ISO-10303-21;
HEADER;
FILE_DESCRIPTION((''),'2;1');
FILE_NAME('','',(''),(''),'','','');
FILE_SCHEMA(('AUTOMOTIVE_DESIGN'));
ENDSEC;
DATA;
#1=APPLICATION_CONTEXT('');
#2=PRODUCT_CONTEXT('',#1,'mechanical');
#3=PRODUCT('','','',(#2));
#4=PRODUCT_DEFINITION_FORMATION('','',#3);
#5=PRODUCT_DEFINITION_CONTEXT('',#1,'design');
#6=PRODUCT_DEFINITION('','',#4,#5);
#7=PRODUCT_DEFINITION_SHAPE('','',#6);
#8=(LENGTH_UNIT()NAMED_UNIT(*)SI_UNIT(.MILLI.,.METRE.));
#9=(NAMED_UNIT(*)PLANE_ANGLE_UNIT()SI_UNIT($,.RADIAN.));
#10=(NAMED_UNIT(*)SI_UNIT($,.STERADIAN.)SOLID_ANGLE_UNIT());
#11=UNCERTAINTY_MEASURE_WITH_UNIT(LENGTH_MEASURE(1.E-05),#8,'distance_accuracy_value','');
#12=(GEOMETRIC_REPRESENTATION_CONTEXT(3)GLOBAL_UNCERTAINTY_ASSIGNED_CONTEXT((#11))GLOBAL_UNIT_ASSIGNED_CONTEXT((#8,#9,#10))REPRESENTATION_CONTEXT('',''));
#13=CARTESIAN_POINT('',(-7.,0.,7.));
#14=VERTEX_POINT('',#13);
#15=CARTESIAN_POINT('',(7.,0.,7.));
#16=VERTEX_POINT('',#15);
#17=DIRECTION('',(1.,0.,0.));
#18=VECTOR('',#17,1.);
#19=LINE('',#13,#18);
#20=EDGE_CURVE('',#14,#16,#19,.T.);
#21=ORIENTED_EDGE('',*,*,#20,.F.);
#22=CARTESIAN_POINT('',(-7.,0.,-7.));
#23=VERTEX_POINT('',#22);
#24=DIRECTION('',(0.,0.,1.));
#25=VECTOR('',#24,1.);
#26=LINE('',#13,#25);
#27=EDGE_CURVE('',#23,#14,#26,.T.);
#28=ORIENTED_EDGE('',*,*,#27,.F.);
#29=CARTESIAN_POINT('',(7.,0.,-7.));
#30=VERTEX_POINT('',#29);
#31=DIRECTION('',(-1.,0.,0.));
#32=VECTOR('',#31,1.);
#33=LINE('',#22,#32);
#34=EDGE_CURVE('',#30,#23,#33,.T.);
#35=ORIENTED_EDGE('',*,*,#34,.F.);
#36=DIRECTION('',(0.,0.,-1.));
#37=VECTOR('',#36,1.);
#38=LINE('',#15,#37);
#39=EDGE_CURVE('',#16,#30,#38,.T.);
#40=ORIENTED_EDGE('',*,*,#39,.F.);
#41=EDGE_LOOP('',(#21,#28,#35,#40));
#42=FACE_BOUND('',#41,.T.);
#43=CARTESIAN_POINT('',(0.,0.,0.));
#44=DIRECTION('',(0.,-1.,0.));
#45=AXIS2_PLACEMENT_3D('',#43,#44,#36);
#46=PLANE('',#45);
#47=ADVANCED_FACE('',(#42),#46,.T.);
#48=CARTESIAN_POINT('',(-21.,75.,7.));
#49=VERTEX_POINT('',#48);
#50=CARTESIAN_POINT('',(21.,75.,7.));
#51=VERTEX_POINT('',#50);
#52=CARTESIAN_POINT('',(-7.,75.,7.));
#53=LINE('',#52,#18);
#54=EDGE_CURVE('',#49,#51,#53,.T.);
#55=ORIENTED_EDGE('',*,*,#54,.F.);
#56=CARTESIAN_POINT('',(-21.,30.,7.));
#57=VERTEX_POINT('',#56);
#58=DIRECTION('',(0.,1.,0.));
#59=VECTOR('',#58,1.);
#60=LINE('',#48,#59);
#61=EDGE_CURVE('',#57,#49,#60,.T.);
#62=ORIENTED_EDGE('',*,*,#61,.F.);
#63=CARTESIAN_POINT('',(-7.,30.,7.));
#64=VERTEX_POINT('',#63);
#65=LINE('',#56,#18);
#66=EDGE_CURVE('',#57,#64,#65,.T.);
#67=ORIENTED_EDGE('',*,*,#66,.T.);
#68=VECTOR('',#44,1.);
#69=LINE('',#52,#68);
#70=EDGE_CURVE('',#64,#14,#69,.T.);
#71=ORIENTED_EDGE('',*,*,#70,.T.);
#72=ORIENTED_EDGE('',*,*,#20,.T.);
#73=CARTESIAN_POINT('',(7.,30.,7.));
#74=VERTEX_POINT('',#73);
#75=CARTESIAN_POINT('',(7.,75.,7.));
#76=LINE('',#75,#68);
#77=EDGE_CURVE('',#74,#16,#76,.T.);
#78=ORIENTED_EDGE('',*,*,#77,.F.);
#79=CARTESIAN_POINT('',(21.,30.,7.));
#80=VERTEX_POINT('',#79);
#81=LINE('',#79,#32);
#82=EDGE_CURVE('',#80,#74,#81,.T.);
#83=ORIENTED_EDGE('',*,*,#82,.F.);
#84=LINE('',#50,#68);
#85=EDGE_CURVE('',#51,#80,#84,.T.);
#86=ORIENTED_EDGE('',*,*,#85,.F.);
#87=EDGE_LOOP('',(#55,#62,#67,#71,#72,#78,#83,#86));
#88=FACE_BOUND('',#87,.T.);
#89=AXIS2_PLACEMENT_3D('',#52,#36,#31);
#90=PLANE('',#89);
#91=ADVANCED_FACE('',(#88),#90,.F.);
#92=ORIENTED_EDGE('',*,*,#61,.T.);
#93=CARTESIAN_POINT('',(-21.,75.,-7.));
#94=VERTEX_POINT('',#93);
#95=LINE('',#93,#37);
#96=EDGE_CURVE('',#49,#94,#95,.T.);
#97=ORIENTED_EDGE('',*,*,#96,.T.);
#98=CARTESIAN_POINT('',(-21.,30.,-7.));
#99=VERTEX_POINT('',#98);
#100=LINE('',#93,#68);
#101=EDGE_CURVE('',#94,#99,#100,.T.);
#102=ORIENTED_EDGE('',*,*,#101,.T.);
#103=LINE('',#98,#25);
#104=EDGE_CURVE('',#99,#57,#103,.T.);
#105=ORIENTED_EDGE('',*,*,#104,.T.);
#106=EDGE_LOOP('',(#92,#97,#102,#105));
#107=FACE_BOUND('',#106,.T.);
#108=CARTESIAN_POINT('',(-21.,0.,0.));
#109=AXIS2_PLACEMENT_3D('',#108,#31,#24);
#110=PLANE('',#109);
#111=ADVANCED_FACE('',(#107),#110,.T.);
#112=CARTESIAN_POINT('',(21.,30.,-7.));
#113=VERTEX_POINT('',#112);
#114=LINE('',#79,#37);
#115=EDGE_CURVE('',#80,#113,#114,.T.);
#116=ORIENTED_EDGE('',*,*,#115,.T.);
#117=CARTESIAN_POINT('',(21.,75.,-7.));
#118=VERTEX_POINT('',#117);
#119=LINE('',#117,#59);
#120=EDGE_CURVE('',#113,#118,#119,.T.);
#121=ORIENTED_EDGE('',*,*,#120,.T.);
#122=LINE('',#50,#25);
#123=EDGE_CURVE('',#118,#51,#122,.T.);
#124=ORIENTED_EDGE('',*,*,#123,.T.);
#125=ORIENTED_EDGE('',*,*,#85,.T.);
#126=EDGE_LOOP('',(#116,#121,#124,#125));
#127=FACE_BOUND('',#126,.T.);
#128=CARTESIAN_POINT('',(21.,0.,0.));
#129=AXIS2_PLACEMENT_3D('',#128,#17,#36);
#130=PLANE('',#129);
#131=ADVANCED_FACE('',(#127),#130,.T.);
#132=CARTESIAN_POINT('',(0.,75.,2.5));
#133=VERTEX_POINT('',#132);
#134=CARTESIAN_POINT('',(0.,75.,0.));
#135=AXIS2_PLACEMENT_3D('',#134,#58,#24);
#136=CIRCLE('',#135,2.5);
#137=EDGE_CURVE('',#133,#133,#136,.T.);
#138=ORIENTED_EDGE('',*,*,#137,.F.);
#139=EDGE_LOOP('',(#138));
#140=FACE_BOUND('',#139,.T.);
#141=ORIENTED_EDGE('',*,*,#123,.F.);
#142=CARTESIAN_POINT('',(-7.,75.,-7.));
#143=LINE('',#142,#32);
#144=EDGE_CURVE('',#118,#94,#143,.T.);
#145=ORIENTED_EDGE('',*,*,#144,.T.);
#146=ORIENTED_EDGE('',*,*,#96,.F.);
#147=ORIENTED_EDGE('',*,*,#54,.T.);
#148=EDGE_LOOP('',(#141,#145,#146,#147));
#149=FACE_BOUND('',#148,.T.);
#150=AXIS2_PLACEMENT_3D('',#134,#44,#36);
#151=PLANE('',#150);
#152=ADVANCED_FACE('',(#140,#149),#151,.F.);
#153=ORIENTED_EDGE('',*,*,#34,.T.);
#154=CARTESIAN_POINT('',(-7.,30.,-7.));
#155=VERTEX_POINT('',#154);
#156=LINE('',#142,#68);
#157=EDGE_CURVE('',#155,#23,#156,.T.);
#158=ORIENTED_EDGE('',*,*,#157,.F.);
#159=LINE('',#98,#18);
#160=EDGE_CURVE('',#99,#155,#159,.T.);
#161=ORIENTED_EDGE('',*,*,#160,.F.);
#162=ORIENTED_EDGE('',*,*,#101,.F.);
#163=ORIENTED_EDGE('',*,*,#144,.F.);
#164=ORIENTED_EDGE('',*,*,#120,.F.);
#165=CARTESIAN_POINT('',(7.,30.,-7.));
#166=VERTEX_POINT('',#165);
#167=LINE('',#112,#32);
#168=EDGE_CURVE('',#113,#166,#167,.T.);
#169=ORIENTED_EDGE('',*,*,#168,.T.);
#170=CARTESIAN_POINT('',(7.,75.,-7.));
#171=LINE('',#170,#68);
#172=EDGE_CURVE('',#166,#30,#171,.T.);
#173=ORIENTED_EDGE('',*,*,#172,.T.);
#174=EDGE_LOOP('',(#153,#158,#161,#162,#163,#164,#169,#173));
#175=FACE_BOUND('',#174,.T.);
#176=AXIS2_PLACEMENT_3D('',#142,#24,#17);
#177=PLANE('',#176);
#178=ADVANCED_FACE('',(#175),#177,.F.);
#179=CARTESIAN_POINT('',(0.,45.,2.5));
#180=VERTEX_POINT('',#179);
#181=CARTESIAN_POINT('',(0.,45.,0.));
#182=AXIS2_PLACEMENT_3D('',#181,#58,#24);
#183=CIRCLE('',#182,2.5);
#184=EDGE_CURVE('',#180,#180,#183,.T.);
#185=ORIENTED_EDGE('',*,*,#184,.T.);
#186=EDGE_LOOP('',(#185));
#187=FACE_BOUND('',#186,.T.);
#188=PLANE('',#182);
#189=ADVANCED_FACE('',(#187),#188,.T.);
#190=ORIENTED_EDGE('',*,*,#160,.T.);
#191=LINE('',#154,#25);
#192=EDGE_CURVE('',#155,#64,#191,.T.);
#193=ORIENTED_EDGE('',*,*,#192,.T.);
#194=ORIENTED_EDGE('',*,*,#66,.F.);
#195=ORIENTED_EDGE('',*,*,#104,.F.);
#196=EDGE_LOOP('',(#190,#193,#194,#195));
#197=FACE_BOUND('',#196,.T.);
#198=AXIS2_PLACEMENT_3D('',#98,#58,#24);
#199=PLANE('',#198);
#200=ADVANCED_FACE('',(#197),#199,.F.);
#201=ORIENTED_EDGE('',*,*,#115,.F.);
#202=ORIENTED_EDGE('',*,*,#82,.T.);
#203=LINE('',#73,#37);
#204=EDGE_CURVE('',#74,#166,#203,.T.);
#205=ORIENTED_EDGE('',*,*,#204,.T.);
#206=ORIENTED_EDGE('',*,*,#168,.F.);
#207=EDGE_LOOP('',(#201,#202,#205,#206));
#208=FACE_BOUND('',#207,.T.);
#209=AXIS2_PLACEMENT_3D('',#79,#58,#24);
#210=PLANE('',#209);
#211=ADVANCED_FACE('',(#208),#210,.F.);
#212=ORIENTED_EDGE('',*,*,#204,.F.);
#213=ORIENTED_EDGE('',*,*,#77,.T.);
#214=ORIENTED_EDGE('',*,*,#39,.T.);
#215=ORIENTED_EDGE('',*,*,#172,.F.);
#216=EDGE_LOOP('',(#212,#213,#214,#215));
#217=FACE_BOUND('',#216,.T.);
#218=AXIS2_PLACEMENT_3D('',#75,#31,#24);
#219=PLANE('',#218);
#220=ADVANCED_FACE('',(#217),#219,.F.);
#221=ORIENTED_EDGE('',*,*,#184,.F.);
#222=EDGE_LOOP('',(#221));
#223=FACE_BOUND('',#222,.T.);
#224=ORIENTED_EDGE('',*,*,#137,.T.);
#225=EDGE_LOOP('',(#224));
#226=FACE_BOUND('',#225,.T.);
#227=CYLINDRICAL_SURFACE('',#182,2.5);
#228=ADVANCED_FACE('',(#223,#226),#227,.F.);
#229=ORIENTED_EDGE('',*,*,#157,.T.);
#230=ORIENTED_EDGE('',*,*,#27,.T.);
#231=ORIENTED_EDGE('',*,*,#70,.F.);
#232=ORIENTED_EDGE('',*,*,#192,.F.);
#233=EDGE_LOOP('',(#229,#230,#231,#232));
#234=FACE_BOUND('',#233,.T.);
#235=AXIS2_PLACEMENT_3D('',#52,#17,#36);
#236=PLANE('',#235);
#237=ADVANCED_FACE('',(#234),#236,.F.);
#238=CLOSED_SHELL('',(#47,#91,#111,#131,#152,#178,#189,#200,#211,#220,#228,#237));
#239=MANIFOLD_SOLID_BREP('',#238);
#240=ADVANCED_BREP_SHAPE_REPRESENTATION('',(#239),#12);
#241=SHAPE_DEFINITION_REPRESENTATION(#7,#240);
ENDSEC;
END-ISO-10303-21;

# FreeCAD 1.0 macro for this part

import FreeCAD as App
import Part
import Sketcher

V = App.Vector

doc = App.newDocument("Part")
body = doc.addObject("PartDesign::Body", "Body")

sketch1 = body.newObject("Sketcher::SketchObject", "Sketch")
sketch1.AttachmentSupport = (doc.getObject("XZ_Plane"), [""])
sketch1.MapMode = "FlatFace"
sketch1.addGeometry([
    Part.LineSegment(V(-7, -7, 0), V(-7, 7, 0)),
    Part.LineSegment(V(-7, 7, 0), V(7, 7, 0)),
    Part.LineSegment(V(7, 7, 0), V(7, -7, 0)),
    Part.LineSegment(V(7, -7, 0), V(-7, -7, 0)),
], False)
sketch1.addConstraint([
    Sketcher.Constraint("Coincident", 0, 2, 1, 1),
    Sketcher.Constraint("Coincident", 1, 2, 2, 1),
    Sketcher.Constraint("Coincident", 2, 2, 3, 1),
    Sketcher.Constraint("Coincident", 3, 2, 0, 1),
    Sketcher.Constraint("Vertical", 0),
    Sketcher.Constraint("Horizontal", 1),
    Sketcher.Constraint("Vertical", 2),
    Sketcher.Constraint("Horizontal", 3),
    Sketcher.Constraint("Symmetric", 0, 2, 2, 2, -1, 1),
    Sketcher.Constraint("Equal", 3, 0),
    Sketcher.Constraint("DistanceX", 1, 1, 1, 2, 14.0),
])
pad1 = body.newObject("PartDesign::Pad", "Pad")
pad1.Profile = sketch1
pad1.Length = 75
pad1.Reversed = True

sketch2 = body.newObject("Sketcher::SketchObject", "Sketch001")
sketch2.AttachmentSupport = (doc.getObject("XZ_Plane"), [""])
sketch2.MapMode = "FlatFace"
sketch2.AttachmentOffset = App.Placement(V(0, 0, -75), App.Rotation())
sketch2.addGeometry(Part.Circle(V(0, 0, 0), V(0, 0, 1), 2.5), False)
sketch2.addConstraint([
    Sketcher.Constraint("Coincident", 0, 3, -1, 1),
    Sketcher.Constraint("Diameter", 0, 5.0),
])
pocket1 = body.newObject("PartDesign::Pocket", "Pocket")
pocket1.Profile = sketch2
pocket1.Length = 30
pocket1.Reversed = True

sketch3 = body.newObject("Sketcher::SketchObject", "Sketch002")
sketch3.AttachmentSupport = (doc.getObject("YZ_Plane"), [""])
sketch3.MapMode = "FlatFace"
sketch3.AttachmentOffset = App.Placement(V(0, 0, 7), App.Rotation())
sketch3.addGeometry([
    Part.LineSegment(V(75, 7, 0), V(30, 7, 0)),
    Part.LineSegment(V(30, 7, 0), V(30, -7, 0)),
    Part.LineSegment(V(30, -7, 0), V(75, -7, 0)),
    Part.LineSegment(V(75, -7, 0), V(75, 7, 0)),
], False)
sketch3.addConstraint([
    Sketcher.Constraint("Coincident", 0, 2, 1, 1),
    Sketcher.Constraint("Coincident", 1, 2, 2, 1),
    Sketcher.Constraint("Coincident", 2, 2, 3, 1),
    Sketcher.Constraint("Coincident", 3, 2, 0, 1),
    Sketcher.Constraint("Horizontal", 0),
    Sketcher.Constraint("Vertical", 1),
    Sketcher.Constraint("Horizontal", 2),
    Sketcher.Constraint("Vertical", 3),
    Sketcher.Constraint("DistanceX", 0, 2, 0, 1, 45.0),
    Sketcher.Constraint("DistanceY", 1, 2, 1, 1, 14.0),
    Sketcher.Constraint("DistanceX", -1, 1, 0, 2, 30.0),
    Sketcher.Constraint("DistanceY", -1, 1, 0, 2, 7.0),
])
pad2 = body.newObject("PartDesign::Pad", "Pad001")
pad2.Profile = sketch3
pad2.Length = 14

sketch4 = body.newObject("Sketcher::SketchObject", "Sketch003")
sketch4.AttachmentSupport = (doc.getObject("YZ_Plane"), [""])
sketch4.MapMode = "FlatFace"
sketch4.AttachmentOffset = App.Placement(V(0, 0, -7), App.Rotation())
sketch4.addGeometry([
    Part.LineSegment(V(75, -7, 0), V(30, -7, 0)),
    Part.LineSegment(V(30, -7, 0), V(30, 7, 0)),
    Part.LineSegment(V(30, 7, 0), V(75, 7, 0)),
    Part.LineSegment(V(75, 7, 0), V(75, -7, 0)),
], False)
sketch4.addConstraint([
    Sketcher.Constraint("Coincident", 0, 2, 1, 1),
    Sketcher.Constraint("Coincident", 1, 2, 2, 1),
    Sketcher.Constraint("Coincident", 2, 2, 3, 1),
    Sketcher.Constraint("Coincident", 3, 2, 0, 1),
    Sketcher.Constraint("Horizontal", 0),
    Sketcher.Constraint("Vertical", 1),
    Sketcher.Constraint("Horizontal", 2),
    Sketcher.Constraint("Vertical", 3),
    Sketcher.Constraint("DistanceX", 0, 2, 0, 1, 45.0),
    Sketcher.Constraint("DistanceY", 1, 1, 1, 2, 14.0),
    Sketcher.Constraint("DistanceX", -1, 1, 0, 2, 30.0),
    Sketcher.Constraint("DistanceY", 0, 2, -1, 1, 7.0),
])
pad3 = body.newObject("PartDesign::Pad", "Pad002")
pad3.Profile = sketch4
pad3.Length = 14
pad3.Reversed = True

doc.recompute()
